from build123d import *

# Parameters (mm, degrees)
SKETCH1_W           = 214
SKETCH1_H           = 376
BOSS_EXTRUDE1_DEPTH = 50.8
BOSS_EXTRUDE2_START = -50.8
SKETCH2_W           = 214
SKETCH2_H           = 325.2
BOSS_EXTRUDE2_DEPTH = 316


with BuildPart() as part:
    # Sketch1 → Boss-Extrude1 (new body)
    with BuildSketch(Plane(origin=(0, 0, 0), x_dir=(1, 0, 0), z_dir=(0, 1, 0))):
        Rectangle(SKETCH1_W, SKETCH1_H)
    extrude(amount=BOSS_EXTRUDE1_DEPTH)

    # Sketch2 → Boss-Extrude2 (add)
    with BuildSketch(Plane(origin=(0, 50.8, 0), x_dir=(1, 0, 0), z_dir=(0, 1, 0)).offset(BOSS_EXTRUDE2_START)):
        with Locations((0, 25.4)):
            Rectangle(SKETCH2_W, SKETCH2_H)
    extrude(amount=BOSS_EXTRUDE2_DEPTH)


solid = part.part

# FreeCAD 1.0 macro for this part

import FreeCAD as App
import Part
import Sketcher

doc = App.newDocument("Part")
body = doc.addObject("PartDesign::Body", "Body")

sketch1 = body.newObject("Sketcher::SketchObject", "Sketch")
sketch1.AttachmentSupport = (doc.getObject("XZ_Plane"), [""])
sketch1.MapMode = "FlatFace"
sketch1.addGeometry([
    Part.LineSegment(App.Vector(-107, -188, 0), App.Vector(-107, 188, 0)),
    Part.LineSegment(App.Vector(-107, 188, 0), App.Vector(107, 188, 0)),
    Part.LineSegment(App.Vector(107, 188, 0), App.Vector(107, -188, 0)),
    Part.LineSegment(App.Vector(107, -188, 0), App.Vector(-107, -188, 0)),
], False)
sketch1.addConstraint([
    Sketcher.Constraint("Coincident", 0, 2, 1, 1),
    Sketcher.Constraint("Coincident", 1, 2, 2, 1),
    Sketcher.Constraint("Coincident", 2, 2, 3, 1),
    Sketcher.Constraint("Coincident", 3, 2, 0, 1),
    Sketcher.Constraint("Vertical", 0),
    Sketcher.Constraint("Horizontal", 1),
    Sketcher.Constraint("Vertical", 2),
    Sketcher.Constraint("Horizontal", 3),
    Sketcher.Constraint("Symmetric", 0, 2, 2, 2, -1, 1),
    Sketcher.Constraint("DistanceX", 1, 1, 1, 2, 214.0),
    Sketcher.Constraint("DistanceY", 0, 1, 0, 2, 376.0),
])
pad1 = body.newObject("PartDesign::Pad", "Pad")
pad1.Profile = sketch1
pad1.Length = 50.8
pad1.Reversed = True

sketch2 = body.newObject("Sketcher::SketchObject", "Sketch001")
sketch2.AttachmentSupport = (doc.getObject("XZ_Plane"), [""])
sketch2.MapMode = "FlatFace"
sketch2.addGeometry([
    Part.LineSegment(App.Vector(-107, -188, 0), App.Vector(-107, 137.2, 0)),
    Part.LineSegment(App.Vector(-107, 137.2, 0), App.Vector(107, 137.2, 0)),
    Part.LineSegment(App.Vector(107, 137.2, 0), App.Vector(107, -188, 0)),
    Part.LineSegment(App.Vector(107, -188, 0), App.Vector(-107, -188, 0)),
], False)
sketch2.addConstraint([
    Sketcher.Constraint("Coincident", 0, 2, 1, 1),
    Sketcher.Constraint("Coincident", 1, 2, 2, 1),
    Sketcher.Constraint("Coincident", 2, 2, 3, 1),
    Sketcher.Constraint("Coincident", 3, 2, 0, 1),
    Sketcher.Constraint("Vertical", 0),
    Sketcher.Constraint("Horizontal", 1),
    Sketcher.Constraint("Vertical", 2),
    Sketcher.Constraint("Horizontal", 3),
    Sketcher.Constraint("DistanceX", 1, 1, 1, 2, 214.0),
    Sketcher.Constraint("DistanceY", 0, 1, 0, 2, 325.2),
    Sketcher.Constraint("DistanceX", 0, 2, -1, 1, 107.0),
    Sketcher.Constraint("DistanceY", 2, 2, -1, 1, 188.0),
])
pad2 = body.newObject("PartDesign::Pad", "Pad001")
pad2.Profile = sketch2
pad2.Length = 316
pad2.Reversed = True

doc.recompute()
